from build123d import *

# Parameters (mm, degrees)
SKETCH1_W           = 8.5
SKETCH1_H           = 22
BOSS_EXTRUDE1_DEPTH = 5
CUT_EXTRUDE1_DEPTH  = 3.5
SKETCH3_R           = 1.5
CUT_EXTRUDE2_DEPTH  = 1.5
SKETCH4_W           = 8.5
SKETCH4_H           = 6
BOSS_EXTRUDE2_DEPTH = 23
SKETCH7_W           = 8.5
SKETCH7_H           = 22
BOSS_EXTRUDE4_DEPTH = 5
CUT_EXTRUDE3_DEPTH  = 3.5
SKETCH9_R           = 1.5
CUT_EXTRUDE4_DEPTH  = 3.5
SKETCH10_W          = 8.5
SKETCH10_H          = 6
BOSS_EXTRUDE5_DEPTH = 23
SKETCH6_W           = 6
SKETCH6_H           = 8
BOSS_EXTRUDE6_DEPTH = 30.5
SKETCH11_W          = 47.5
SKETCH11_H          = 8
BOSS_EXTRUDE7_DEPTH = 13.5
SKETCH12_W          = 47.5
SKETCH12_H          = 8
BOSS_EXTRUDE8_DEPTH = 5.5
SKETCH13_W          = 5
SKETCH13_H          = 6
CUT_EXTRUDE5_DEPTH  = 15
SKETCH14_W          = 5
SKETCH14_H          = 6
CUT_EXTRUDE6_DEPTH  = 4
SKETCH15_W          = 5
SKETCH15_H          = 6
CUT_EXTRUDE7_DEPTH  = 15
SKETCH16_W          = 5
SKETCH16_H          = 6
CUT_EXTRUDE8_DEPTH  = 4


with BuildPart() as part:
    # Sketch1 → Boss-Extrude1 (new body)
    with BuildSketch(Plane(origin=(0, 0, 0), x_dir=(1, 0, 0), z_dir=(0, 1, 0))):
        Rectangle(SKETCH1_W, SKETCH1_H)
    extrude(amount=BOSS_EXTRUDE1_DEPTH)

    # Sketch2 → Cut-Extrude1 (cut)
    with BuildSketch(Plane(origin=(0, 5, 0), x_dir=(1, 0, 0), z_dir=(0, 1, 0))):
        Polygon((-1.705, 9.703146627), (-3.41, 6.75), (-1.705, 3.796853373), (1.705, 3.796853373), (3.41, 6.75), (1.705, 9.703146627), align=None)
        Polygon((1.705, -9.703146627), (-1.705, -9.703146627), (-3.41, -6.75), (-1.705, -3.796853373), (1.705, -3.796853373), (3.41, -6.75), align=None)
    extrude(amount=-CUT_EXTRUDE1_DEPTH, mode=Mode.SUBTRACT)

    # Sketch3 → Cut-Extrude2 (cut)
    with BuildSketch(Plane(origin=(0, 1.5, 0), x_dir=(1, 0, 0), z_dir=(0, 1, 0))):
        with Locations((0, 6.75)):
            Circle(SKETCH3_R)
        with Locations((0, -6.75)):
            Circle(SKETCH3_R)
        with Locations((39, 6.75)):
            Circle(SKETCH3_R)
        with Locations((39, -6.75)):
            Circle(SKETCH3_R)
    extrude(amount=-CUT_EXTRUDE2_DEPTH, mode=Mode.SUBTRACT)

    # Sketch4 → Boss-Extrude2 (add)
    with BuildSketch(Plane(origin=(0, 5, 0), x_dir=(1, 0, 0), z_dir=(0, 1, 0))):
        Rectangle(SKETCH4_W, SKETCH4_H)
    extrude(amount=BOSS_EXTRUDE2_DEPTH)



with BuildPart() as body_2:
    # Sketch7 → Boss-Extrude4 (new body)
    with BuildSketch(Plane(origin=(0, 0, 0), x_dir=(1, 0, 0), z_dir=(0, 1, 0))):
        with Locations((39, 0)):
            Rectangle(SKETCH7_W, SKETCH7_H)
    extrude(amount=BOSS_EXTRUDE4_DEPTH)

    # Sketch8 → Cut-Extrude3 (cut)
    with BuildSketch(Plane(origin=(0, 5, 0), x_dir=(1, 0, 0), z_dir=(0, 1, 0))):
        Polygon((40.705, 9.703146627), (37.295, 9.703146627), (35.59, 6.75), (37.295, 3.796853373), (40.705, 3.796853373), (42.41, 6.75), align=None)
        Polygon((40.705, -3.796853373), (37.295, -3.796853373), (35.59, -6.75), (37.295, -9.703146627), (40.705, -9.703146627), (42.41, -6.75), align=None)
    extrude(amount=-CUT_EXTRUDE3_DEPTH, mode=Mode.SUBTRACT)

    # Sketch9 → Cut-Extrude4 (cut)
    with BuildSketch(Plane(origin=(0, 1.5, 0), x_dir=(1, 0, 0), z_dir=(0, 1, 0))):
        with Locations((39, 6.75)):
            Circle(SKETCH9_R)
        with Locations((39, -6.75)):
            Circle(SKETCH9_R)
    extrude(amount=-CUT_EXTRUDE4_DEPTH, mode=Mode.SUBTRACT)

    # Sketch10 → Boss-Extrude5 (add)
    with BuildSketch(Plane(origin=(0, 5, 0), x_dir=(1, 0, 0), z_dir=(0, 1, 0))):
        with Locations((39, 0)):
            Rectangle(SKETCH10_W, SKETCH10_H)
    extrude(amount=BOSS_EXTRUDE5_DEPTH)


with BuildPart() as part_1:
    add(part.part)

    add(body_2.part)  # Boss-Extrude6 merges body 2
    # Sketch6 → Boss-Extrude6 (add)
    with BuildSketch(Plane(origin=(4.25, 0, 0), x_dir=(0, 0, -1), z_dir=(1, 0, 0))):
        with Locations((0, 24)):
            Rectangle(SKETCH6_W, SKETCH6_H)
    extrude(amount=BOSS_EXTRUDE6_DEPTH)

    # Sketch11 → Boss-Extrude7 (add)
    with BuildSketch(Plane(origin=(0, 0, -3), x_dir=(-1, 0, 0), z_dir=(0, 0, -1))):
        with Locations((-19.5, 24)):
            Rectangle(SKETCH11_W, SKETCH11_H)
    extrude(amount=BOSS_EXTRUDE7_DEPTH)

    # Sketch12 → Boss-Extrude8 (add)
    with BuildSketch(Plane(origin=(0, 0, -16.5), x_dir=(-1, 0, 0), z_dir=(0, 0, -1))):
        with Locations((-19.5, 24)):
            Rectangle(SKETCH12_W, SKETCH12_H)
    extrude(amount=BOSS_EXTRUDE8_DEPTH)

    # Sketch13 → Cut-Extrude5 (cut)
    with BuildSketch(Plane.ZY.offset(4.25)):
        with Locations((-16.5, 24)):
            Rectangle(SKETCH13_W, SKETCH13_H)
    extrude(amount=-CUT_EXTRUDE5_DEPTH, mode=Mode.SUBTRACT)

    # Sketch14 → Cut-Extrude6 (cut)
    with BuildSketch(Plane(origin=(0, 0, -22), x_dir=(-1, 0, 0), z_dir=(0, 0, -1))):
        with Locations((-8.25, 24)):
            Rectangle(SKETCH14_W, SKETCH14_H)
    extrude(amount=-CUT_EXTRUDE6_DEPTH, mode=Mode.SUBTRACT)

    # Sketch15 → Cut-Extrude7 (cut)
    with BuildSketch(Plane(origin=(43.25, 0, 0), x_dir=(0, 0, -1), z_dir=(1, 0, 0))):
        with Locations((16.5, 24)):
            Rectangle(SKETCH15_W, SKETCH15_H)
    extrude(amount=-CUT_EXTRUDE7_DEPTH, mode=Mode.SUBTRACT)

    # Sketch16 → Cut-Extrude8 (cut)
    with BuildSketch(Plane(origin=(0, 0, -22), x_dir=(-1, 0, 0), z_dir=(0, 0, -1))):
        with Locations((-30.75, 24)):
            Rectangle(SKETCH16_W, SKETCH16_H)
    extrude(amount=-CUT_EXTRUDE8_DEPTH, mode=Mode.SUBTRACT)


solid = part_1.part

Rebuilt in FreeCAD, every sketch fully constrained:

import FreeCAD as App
import Part
import Sketcher

V = App.Vector
Q = App.Units.Quantity


def add_polygon(sketch, points):
    """Adds a closed chain of lines whose ends are joined by coincident constraints."""
    first, n = sketch.GeometryCount, len(points)
    for a, b in zip(points, points[1:] + points[:1]):
        sketch.addGeometry(Part.LineSegment(App.Vector(*a, 0), App.Vector(*b, 0)), False)
    for i in range(n):
        sketch.addConstraint(Sketcher.Constraint("Coincident", first + i, 2, first + (i + 1) % n, 1))

doc = App.newDocument("Part")
body = doc.addObject("PartDesign::Body", "Body")

# Sketch on XZ plane
sketch1 = body.newObject("Sketcher::SketchObject", "Sketch")
sketch1.AttachmentSupport = (doc.getObject("XZ_Plane"), [""])
sketch1.MapMode = "FlatFace"
add_polygon(sketch1, [(-4, -11), (-4, 11), (4, 11), (4, -11)])  # lines 0-3
sketch1.addConstraint([
    Sketcher.Constraint("Vertical", 0),
    Sketcher.Constraint("Horizontal", 1),
    Sketcher.Constraint("Vertical", 2),
    Sketcher.Constraint("Horizontal", 3),
    Sketcher.Constraint("Symmetric", 0, 2, 2, 2, -1, 1),
    Sketcher.Constraint("DistanceY", 0, 1, 0, 2, 22.0),
    Sketcher.Constraint("DistanceX", 1, 1, 1, 2, 8.5),
])
pad1 = body.newObject("PartDesign::Pad", "Pad")
pad1.Profile = sketch1
pad1.Length = 5
pad1.Reversed = True

# Sketch on XZ plane
sketch2 = body.newObject("Sketcher::SketchObject", "Sketch001")
sketch2.AttachmentSupport = (doc.getObject("XZ_Plane"), [""])
sketch2.MapMode = "FlatFace"
sketch2.AttachmentOffset = App.Placement(V(0, 0, -5), App.Rotation())
add_polygon(sketch2, [(-1.7, -9.7), (-3.4, -6.8), (-1.7, -3.8), (1.7, -3.8), (3.4, -6.8), (1.7, -9.7)])  # lines 0-5
add_polygon(sketch2, [(-1.7, 9.7), (1.7, 9.7), (3.4, 6.8), (1.7, 3.8), (-1.7, 3.8), (-3.4, 6.8)])  # lines 6-11
sketch2.addConstraint([
    Sketcher.Constraint("Horizontal", 2),
    Sketcher.Constraint("Horizontal", 5),
    Sketcher.Constraint("Horizontal", 6),
    Sketcher.Constraint("Horizontal", 9),
    Sketcher.Constraint("Symmetric", 5, 2, 6, 2, -1, 1),
    Sketcher.Constraint("Symmetric", 0, 2, 7, 2, -1, 1),
    Sketcher.Constraint("Symmetric", 1, 2, 8, 2, -1, 1),
    Sketcher.Constraint("Symmetric", 3, 2, 10, 2, -1, 1),
    Sketcher.Constraint("Symmetric", 0, 2, 3, 2, -2),
    Sketcher.Constraint("Parallel", 0, 3),
    Sketcher.Constraint("Parallel", 1, 4),
    Sketcher.Constraint("Parallel", 7, 10),
    Sketcher.Constraint("Parallel", 8, 11),
    Sketcher.Constraint("Vertical", 2, 2, 4, 2),
    Sketcher.Constraint("Vertical", 1, 2, 5, 2),
    Sketcher.Constraint("Angle", 0, Q("120 deg")),
    Sketcher.Constraint("DistanceX", 2, 1, 2, 2, 3.41),
    Sketcher.Constraint("DistanceY", 2, 2, 6, 2, 13.5),
    Sketcher.Constraint("Distance", 0, 3.41),
])
pocket1 = body.newObject("PartDesign::Pocket", "Pocket")
pocket1.Profile = sketch2
pocket1.Length = 3.5
pocket1.Reversed = True

# Sketch on XZ plane
sketch3 = body.newObject("Sketcher::SketchObject", "Sketch002")
sketch3.AttachmentSupport = (doc.getObject("XZ_Plane"), [""])
sketch3.MapMode = "FlatFace"
sketch3.AttachmentOffset = App.Placement(V(0, 0, -1.5), App.Rotation())
sketch3.addGeometry([
    Part.Circle(V(0, -6.8, 0), V(0, 0, 1), 1.5),
    Part.Circle(V(0, 6.8, 0), V(0, 0, 1), 1.5),
    Part.Circle(V(39, -6.8, 0), V(0, 0, 1), 1.5),
    Part.Circle(V(39, 6.8, 0), V(0, 0, 1), 1.5),
], False)
sketch3.addConstraint([
    Sketcher.Constraint("Equal", 0, 1),
    Sketcher.Constraint("Equal", 1, 2),
    Sketcher.Constraint("Equal", 2, 3),
    Sketcher.Constraint("Symmetric", 0, 3, 1, 3, -1, 1),
    Sketcher.Constraint("Symmetric", 2, 3, 3, 3, -1),
    Sketcher.Constraint("PointOnObject", 0, 3, -2),
    Sketcher.Constraint("Horizontal", 0, 3, 2, 3),
    Sketcher.Constraint("Diameter", 0, 3.0),
    Sketcher.Constraint("DistanceX", -1, 1, 2, 3, 39.0),
    Sketcher.Constraint("DistanceY", 0, 3, 1, 3, 13.5),
])
pocket2 = body.newObject("PartDesign::Pocket", "Pocket001")
pocket2.Profile = sketch3
pocket2.Length = 1.5
pocket2.Reversed = True

# Sketch on XZ plane
sketch4 = body.newObject("Sketcher::SketchObject", "Sketch003")
sketch4.AttachmentSupport = (doc.getObject("XZ_Plane"), [""])
sketch4.MapMode = "FlatFace"
sketch4.AttachmentOffset = App.Placement(V(0, 0, -5), App.Rotation())
add_polygon(sketch4, [(-4, -3), (-4, 3), (4, 3), (4, -3)])  # lines 0-3
sketch4.addConstraint([
    Sketcher.Constraint("Vertical", 0),
    Sketcher.Constraint("Horizontal", 1),
    Sketcher.Constraint("Vertical", 2),
    Sketcher.Constraint("Horizontal", 3),
    Sketcher.Constraint("Symmetric", 0, 2, 2, 2, -1, 1),
    Sketcher.Constraint("DistanceY", 0, 1, 0, 2, 6.0),
    Sketcher.Constraint("DistanceX", 1, 1, 1, 2, 8.5),
])
pad2 = body.newObject("PartDesign::Pad", "Pad001")
pad2.Profile = sketch4
pad2.Length = 23
pad2.Reversed = True
body2 = doc.addObject("PartDesign::Body", "Body001")

# Sketch on XZ plane
sketch5 = body2.newObject("Sketcher::SketchObject", "Sketch004")
sketch5.AttachmentSupport = (doc.getObject("XZ_Plane001"), [""])
sketch5.MapMode = "FlatFace"
add_polygon(sketch5, [(35, -11), (35, 11), (43, 11), (43, -11)])  # lines 0-3
sketch5.addConstraint([
    Sketcher.Constraint("Vertical", 0),
    Sketcher.Constraint("Horizontal", 1),
    Sketcher.Constraint("Vertical", 2),
    Sketcher.Constraint("Horizontal", 3),
    Sketcher.Constraint("DistanceY", 0, 1, 0, 2, 22.0),
    Sketcher.Constraint("DistanceX", 1, 1, 1, 2, 8.5),
    Sketcher.Constraint("DistanceY", -1, 1, 0, 2, 11.0),
    Sketcher.Constraint("DistanceX", -1, 1, 0, 2, 34.75),
])
pad3 = body2.newObject("PartDesign::Pad", "Pad002")
pad3.Profile = sketch5
pad3.Length = 5
pad3.Reversed = True

# Sketch on XZ plane
sketch6 = body2.newObject("Sketcher::SketchObject", "Sketch005")
sketch6.AttachmentSupport = (doc.getObject("XZ_Plane001"), [""])
sketch6.MapMode = "FlatFace"
sketch6.AttachmentOffset = App.Placement(V(0, 0, -5), App.Rotation())
add_polygon(sketch6, [(40.7, -9.7), (37.3, -9.7), (35.6, -6.8), (37.3, -3.8), (40.7, -3.8), (42.4, -6.8)])  # lines 0-5
add_polygon(sketch6, [(40.7, 3.8), (37.3, 3.8), (35.6, 6.8), (37.3, 9.7), (40.7, 9.7), (42.4, 6.8)])  # lines 6-11
sketch6.addConstraint([
    Sketcher.Constraint("Horizontal", 0),
    Sketcher.Constraint("Horizontal", 3),
    Sketcher.Constraint("Horizontal", 6),
    Sketcher.Constraint("Horizontal", 9),
    Sketcher.Constraint("Symmetric", 2, 2, 6, 2, -1),
    Sketcher.Constraint("Symmetric", 1, 2, 7, 2, -1),
    Sketcher.Constraint("Symmetric", 0, 2, 8, 2, -1),
    Sketcher.Constraint("Symmetric", 4, 2, 10, 2, -1),
    Sketcher.Constraint("Parallel", 1, 4),
    Sketcher.Constraint("Parallel", 2, 5),
    Sketcher.Constraint("Parallel", 4, 7),
    Sketcher.Constraint("Parallel", 7, 10),
    Sketcher.Constraint("Parallel", 8, 11),
    Sketcher.Constraint("Horizontal", 1, 2, 4, 2),
    Sketcher.Constraint("Vertical", 0, 2, 2, 2),
    Sketcher.Constraint("Angle", 1, Q("120 deg")),
    Sketcher.Constraint("DistanceX", 0, 2, 0, 1, 3.41),
    Sketcher.Constraint("DistanceY", 0, 2, 6, 2, 13.5),
    Sketcher.Constraint("Distance", 1, 3.41),
    Sketcher.Constraint("DistanceX", -1, 1, 1, 2, 35.59),
])
pocket3 = body2.newObject("PartDesign::Pocket", "Pocket002")
pocket3.Profile = sketch6
pocket3.Length = 3.5
pocket3.Reversed = True

# Sketch on XZ plane
sketch7 = body2.newObject("Sketcher::SketchObject", "Sketch006")
sketch7.AttachmentSupport = (doc.getObject("XZ_Plane001"), [""])
sketch7.MapMode = "FlatFace"
sketch7.AttachmentOffset = App.Placement(V(0, 0, -1.5), App.Rotation())
sketch7.addGeometry([
    Part.Circle(V(39, -6.8, 0), V(0, 0, 1), 1.5),
    Part.Circle(V(39, 6.8, 0), V(0, 0, 1), 1.5),
], False)
sketch7.addConstraint([
    Sketcher.Constraint("Equal", 0, 1),
    Sketcher.Constraint("Symmetric", 0, 3, 1, 3, -1),
    Sketcher.Constraint("Diameter", 0, 3.0),
    Sketcher.Constraint("DistanceX", -1, 1, 0, 3, 39.0),
    Sketcher.Constraint("DistanceY", 0, 3, 1, 3, 13.5),
])
pocket4 = body2.newObject("PartDesign::Pocket", "Pocket003")
pocket4.Profile = sketch7
pocket4.Length = 3.5
pocket4.Reversed = True

# Sketch on XZ plane
sketch8 = body2.newObject("Sketcher::SketchObject", "Sketch007")
sketch8.AttachmentSupport = (doc.getObject("XZ_Plane001"), [""])
sketch8.MapMode = "FlatFace"
sketch8.AttachmentOffset = App.Placement(V(0, 0, -5), App.Rotation())
add_polygon(sketch8, [(35, -3), (35, 3), (43, 3), (43, -3)])  # lines 0-3
sketch8.addConstraint([
    Sketcher.Constraint("Vertical", 0),
    Sketcher.Constraint("Horizontal", 1),
    Sketcher.Constraint("Vertical", 2),
    Sketcher.Constraint("Horizontal", 3),
    Sketcher.Constraint("DistanceY", 0, 1, 0, 2, 6.0),
    Sketcher.Constraint("DistanceX", 1, 1, 1, 2, 8.5),
    Sketcher.Constraint("DistanceY", -1, 1, 0, 2, 3.0),
    Sketcher.Constraint("DistanceX", -1, 1, 0, 2, 34.75),
])
pad4 = body2.newObject("PartDesign::Pad", "Pad003")
pad4.Profile = sketch8
pad4.Length = 23
pad4.Reversed = True
body.AllowCompound = True
doc.recompute()

boolean = body.newObject("PartDesign::Boolean", "Boolean")
boolean.Type = "Fuse"
boolean.addObjects([body2])

# Sketch on YZ plane
sketch9 = body.newObject("Sketcher::SketchObject", "Sketch008")
sketch9.AttachmentSupport = (doc.getObject("YZ_Plane"), [""])
sketch9.MapMode = "FlatFace"
sketch9.AttachmentOffset = App.Placement(V(0, 0, 4.25), App.Rotation())
add_polygon(sketch9, [(28, 3), (20, 3), (20, -3), (28, -3)])  # lines 0-3
sketch9.addConstraint([
    Sketcher.Constraint("Horizontal", 0),
    Sketcher.Constraint("Vertical", 1),
    Sketcher.Constraint("Horizontal", 2),
    Sketcher.Constraint("Vertical", 3),
    Sketcher.Constraint("DistanceX", 0, 2, 0, 1, 8.0),
    Sketcher.Constraint("DistanceY", 1, 2, 1, 1, 6.0),
    Sketcher.Constraint("DistanceX", -1, 1, 0, 2, 20.0),
    Sketcher.Constraint("DistanceY", -1, 1, 0, 2, 3.0),
])
pad5 = body.newObject("PartDesign::Pad", "Pad004")
pad5.Profile = sketch9
pad5.Length = 30.5

# Sketch on XY plane
sketch10 = body.newObject("Sketcher::SketchObject", "Sketch009")
sketch10.AttachmentSupport = (doc.getObject("XY_Plane"), [""])
sketch10.MapMode = "FlatFace"
sketch10.AttachmentOffset = App.Placement(V(0, 0, -3), App.Rotation())
add_polygon(sketch10, [(43, 28), (43, 20), (-4, 20), (-4, 28)])  # lines 0-3
sketch10.addConstraint([
    Sketcher.Constraint("Vertical", 0),
    Sketcher.Constraint("Horizontal", 1),
    Sketcher.Constraint("Vertical", 2),
    Sketcher.Constraint("Horizontal", 3),
    Sketcher.Constraint("DistanceY", 0, 2, 0, 1, 8.0),
    Sketcher.Constraint("DistanceX", 1, 2, 1, 1, 47.5),
    Sketcher.Constraint("DistanceY", -1, 1, 0, 2, 20.0),
    Sketcher.Constraint("DistanceX", -1, 1, 0, 2, 43.25),
])
pad6 = body.newObject("PartDesign::Pad", "Pad005")
pad6.Profile = sketch10
pad6.Length = 13.5
pad6.Reversed = True

# Sketch on XY plane
sketch11 = body.newObject("Sketcher::SketchObject", "Sketch010")
sketch11.AttachmentSupport = (doc.getObject("XY_Plane"), [""])
sketch11.MapMode = "FlatFace"
sketch11.AttachmentOffset = App.Placement(V(0, 0, -16.5), App.Rotation())
add_polygon(sketch11, [(43, 28), (43, 20), (-4, 20), (-4, 28)])  # lines 0-3
sketch11.addConstraint([
    Sketcher.Constraint("Vertical", 0),
    Sketcher.Constraint("Horizontal", 1),
    Sketcher.Constraint("Vertical", 2),
    Sketcher.Constraint("Horizontal", 3),
    Sketcher.Constraint("DistanceY", 0, 2, 0, 1, 8.0),
    Sketcher.Constraint("DistanceX", 1, 2, 1, 1, 47.5),
    Sketcher.Constraint("DistanceY", -1, 1, 0, 2, 20.0),
    Sketcher.Constraint("DistanceX", -1, 1, 0, 2, 43.25),
])
pad7 = body.newObject("PartDesign::Pad", "Pad006")
pad7.Profile = sketch11
pad7.Length = 5.5
pad7.Reversed = True

# Sketch on YZ plane
sketch12 = body.newObject("Sketcher::SketchObject", "Sketch011")
sketch12.AttachmentSupport = (doc.getObject("YZ_Plane"), [""])
sketch12.MapMode = "FlatFace"
sketch12.AttachmentOffset = App.Placement(V(0, 0, -4.25), App.Rotation())
add_polygon(sketch12, [(27, -19), (21, -19), (21, -14), (27, -14)])  # lines 0-3
sketch12.addConstraint([
    Sketcher.Constraint("Horizontal", 0),
    Sketcher.Constraint("Vertical", 1),
    Sketcher.Constraint("Horizontal", 2),
    Sketcher.Constraint("Vertical", 3),
    Sketcher.Constraint("DistanceX", 0, 2, 0, 1, 6.0),
    Sketcher.Constraint("DistanceY", 1, 1, 1, 2, 5.0),
    Sketcher.Constraint("DistanceX", -1, 1, 0, 2, 21.0),
    Sketcher.Constraint("DistanceY", 0, 2, -1, 1, 19.0),
])
pocket5 = body.newObject("PartDesign::Pocket", "Pocket004")
pocket5.Profile = sketch12
pocket5.Length = 15
pocket5.Reversed = True

# Sketch on XY plane
sketch13 = body.newObject("Sketcher::SketchObject", "Sketch012")
sketch13.AttachmentSupport = (doc.getObject("XY_Plane"), [""])
sketch13.MapMode = "FlatFace"
sketch13.AttachmentOffset = App.Placement(V(0, 0, -22), App.Rotation())
add_polygon(sketch13, [(11, 27), (11, 21), (6, 21), (6, 27)])  # lines 0-3
sketch13.addConstraint([
    Sketcher.Constraint("Vertical", 0),
    Sketcher.Constraint("Horizontal", 1),
    Sketcher.Constraint("Vertical", 2),
    Sketcher.Constraint("Horizontal", 3),
    Sketcher.Constraint("DistanceX", 1, 2, 1, 1, 5.0),
    Sketcher.Constraint("DistanceY", 0, 2, 0, 1, 6.0),
    Sketcher.Constraint("DistanceY", -1, 1, 0, 2, 21.0),
    Sketcher.Constraint("DistanceX", -1, 1, 0, 2, 10.75),
])
pocket6 = body.newObject("PartDesign::Pocket", "Pocket005")
pocket6.Profile = sketch13
pocket6.Length = 4
pocket6.Reversed = True

# Sketch on YZ plane
sketch14 = body.newObject("Sketcher::SketchObject", "Sketch013")
sketch14.AttachmentSupport = (doc.getObject("YZ_Plane"), [""])
sketch14.MapMode = "FlatFace"
sketch14.AttachmentOffset = App.Placement(V(0, 0, 43.25), App.Rotation())
add_polygon(sketch14, [(27, -14), (21, -14), (21, -19), (27, -19)])  # lines 0-3
sketch14.addConstraint([
    Sketcher.Constraint("Horizontal", 0),
    Sketcher.Constraint("Vertical", 1),
    Sketcher.Constraint("Horizontal", 2),
    Sketcher.Constraint("Vertical", 3),
    Sketcher.Constraint("DistanceX", 0, 2, 0, 1, 6.0),
    Sketcher.Constraint("DistanceY", 1, 2, 1, 1, 5.0),
    Sketcher.Constraint("DistanceX", -1, 1, 0, 2, 21.0),
    Sketcher.Constraint("DistanceY", 0, 2, -1, 1, 14.0),
])
pocket7 = body.newObject("PartDesign::Pocket", "Pocket006")
pocket7.Profile = sketch14
pocket7.Length = 15

# Sketch on XY plane
sketch15 = body.newObject("Sketcher::SketchObject", "Sketch014")
sketch15.AttachmentSupport = (doc.getObject("XY_Plane"), [""])
sketch15.MapMode = "FlatFace"
sketch15.AttachmentOffset = App.Placement(V(0, 0, -22), App.Rotation())
add_polygon(sketch15, [(33, 27), (33, 21), (28, 21), (28, 27)])  # lines 0-3
sketch15.addConstraint([
    Sketcher.Constraint("Vertical", 0),
    Sketcher.Constraint("Horizontal", 1),
    Sketcher.Constraint("Vertical", 2),
    Sketcher.Constraint("Horizontal", 3),
    Sketcher.Constraint("DistanceX", 1, 2, 1, 1, 5.0),
    Sketcher.Constraint("DistanceY", 0, 2, 0, 1, 6.0),
    Sketcher.Constraint("DistanceY", -1, 1, 0, 2, 21.0),
    Sketcher.Constraint("DistanceX", -1, 1, 0, 2, 33.25),
])
pocket8 = body.newObject("PartDesign::Pocket", "Pocket007")
pocket8.Profile = sketch15
pocket8.Length = 4
pocket8.Reversed = True

doc.recompute()
